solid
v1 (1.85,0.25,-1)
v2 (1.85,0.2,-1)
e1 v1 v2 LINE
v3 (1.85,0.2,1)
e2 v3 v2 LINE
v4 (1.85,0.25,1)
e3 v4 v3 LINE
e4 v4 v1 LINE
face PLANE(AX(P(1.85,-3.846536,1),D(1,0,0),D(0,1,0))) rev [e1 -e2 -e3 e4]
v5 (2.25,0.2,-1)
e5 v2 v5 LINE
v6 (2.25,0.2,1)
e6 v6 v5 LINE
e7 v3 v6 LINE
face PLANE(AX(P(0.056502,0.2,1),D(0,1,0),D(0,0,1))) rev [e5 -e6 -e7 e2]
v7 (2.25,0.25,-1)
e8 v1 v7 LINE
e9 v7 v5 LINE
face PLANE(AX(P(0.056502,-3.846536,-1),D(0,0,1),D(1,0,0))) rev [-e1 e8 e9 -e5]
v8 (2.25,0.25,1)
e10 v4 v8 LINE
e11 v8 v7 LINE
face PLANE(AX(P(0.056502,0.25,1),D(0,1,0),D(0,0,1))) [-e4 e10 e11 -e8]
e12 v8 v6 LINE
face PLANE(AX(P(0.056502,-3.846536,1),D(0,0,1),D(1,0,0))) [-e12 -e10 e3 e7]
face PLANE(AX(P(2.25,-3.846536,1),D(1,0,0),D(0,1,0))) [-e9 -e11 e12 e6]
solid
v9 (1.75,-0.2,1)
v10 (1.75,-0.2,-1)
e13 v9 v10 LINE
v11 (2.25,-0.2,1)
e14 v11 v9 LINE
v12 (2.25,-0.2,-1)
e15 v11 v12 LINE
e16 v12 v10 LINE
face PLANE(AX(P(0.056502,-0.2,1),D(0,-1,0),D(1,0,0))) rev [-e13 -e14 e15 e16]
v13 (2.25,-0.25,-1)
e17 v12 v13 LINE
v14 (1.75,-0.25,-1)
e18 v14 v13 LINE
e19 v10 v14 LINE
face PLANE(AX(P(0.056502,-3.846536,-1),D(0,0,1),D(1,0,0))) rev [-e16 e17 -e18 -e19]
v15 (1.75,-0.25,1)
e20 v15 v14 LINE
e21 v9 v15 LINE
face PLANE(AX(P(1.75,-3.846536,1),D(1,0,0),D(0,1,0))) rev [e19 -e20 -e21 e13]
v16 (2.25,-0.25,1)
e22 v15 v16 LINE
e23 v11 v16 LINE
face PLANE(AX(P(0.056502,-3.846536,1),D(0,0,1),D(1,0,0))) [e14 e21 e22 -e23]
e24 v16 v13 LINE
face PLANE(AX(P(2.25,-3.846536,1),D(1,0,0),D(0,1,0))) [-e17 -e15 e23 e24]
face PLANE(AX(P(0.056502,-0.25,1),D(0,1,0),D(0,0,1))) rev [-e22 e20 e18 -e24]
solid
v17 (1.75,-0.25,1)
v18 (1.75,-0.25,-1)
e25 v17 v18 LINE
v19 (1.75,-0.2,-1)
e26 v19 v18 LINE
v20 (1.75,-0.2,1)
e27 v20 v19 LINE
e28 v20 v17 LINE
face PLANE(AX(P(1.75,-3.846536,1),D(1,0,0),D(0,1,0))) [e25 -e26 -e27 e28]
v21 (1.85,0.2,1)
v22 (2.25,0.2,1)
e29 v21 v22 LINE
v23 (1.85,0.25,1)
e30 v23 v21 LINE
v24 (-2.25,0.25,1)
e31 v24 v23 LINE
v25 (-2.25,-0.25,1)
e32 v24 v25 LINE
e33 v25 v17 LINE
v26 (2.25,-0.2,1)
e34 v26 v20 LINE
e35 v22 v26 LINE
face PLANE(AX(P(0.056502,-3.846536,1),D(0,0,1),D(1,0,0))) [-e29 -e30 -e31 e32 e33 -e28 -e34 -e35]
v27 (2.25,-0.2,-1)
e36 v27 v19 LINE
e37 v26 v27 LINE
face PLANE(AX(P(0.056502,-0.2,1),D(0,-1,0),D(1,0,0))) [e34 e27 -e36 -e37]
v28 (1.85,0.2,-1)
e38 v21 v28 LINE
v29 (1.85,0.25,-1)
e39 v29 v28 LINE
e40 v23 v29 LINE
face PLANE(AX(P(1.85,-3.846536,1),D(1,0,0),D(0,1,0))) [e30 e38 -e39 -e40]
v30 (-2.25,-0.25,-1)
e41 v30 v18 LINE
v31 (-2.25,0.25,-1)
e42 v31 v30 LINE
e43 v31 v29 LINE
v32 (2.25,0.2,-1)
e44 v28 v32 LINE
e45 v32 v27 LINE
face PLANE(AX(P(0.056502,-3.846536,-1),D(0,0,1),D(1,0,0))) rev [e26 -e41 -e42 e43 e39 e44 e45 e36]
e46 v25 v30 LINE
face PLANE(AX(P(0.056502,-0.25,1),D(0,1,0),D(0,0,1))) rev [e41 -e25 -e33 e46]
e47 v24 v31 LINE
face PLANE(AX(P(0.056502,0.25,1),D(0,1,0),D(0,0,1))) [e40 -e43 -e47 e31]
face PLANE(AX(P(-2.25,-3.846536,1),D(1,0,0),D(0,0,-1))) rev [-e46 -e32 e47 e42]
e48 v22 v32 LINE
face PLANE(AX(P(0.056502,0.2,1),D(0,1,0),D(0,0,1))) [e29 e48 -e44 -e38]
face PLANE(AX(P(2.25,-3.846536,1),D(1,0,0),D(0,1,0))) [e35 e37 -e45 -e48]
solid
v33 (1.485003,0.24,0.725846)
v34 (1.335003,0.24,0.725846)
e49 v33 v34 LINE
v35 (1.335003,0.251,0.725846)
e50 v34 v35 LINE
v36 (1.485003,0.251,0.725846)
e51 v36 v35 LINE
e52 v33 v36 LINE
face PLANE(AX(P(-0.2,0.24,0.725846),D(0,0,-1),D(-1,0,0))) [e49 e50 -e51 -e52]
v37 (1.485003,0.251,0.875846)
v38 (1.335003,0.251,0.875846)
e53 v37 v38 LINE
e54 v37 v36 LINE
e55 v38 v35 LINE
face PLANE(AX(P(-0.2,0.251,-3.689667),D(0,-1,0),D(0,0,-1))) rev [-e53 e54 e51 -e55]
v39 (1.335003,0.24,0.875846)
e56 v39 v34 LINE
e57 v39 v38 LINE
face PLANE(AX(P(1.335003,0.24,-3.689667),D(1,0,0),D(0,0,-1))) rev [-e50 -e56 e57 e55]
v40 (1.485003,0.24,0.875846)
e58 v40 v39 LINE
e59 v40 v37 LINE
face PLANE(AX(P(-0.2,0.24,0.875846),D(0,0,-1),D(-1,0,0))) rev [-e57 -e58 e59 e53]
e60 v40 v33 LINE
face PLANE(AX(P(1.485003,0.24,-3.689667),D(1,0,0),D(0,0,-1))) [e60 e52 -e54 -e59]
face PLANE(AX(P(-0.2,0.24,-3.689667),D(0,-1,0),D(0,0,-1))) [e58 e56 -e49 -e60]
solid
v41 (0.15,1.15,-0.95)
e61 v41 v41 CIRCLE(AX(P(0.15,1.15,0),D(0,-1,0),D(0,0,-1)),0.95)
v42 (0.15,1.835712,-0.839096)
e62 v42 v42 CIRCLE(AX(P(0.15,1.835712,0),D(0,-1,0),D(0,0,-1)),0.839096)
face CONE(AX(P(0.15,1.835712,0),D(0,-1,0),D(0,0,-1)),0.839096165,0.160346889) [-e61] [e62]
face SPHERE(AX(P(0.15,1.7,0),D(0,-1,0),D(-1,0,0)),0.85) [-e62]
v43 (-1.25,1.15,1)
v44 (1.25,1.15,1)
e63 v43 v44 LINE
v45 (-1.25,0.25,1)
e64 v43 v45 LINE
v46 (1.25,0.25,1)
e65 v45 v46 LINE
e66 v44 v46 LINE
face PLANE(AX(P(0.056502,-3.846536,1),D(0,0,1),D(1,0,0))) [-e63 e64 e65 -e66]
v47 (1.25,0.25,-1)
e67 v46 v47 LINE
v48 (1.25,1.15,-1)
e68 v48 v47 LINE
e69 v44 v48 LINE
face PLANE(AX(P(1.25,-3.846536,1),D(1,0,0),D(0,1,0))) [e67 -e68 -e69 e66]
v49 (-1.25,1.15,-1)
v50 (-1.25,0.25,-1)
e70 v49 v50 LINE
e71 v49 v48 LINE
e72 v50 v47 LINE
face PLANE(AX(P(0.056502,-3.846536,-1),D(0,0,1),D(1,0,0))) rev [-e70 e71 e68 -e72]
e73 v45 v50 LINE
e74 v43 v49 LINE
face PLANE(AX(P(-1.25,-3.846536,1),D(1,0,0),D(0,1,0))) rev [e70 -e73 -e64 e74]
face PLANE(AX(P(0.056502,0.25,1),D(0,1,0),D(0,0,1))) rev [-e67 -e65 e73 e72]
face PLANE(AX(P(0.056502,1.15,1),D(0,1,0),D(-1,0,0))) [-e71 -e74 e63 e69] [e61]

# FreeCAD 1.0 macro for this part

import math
import FreeCAD as App
import Part
import Sketcher
Q = App.Units.Quantity

doc = App.newDocument("Part")
body = doc.addObject("PartDesign::Body", "Body")

# Sketch on XY plane
sketch1 = body.newObject("Sketcher::SketchObject", "Sketch")
sketch1.AttachmentSupport = (doc.getObject("XY_Plane"), [""])
sketch1.MapMode = "FlatFace"
sketch1.addGeometry([
    Part.LineSegment(App.Vector(-2.25, 0.25, 0), App.Vector(-2.25, -0.25, 0)),  # 0
    Part.LineSegment(App.Vector(-2.25, -0.25, 0), App.Vector(1.75, -0.25, 0)),  # 1
    Part.LineSegment(App.Vector(1.75, -0.25, 0), App.Vector(1.75, -0.2, 0)),  # 2
    Part.LineSegment(App.Vector(1.75, -0.2, 0), App.Vector(2.25, -0.2, 0)),  # 3
    Part.LineSegment(App.Vector(2.25, -0.2, 0), App.Vector(2.25, 0.2, 0)),  # 4
    Part.LineSegment(App.Vector(2.25, 0.2, 0), App.Vector(1.85, 0.2, 0)),  # 5
    Part.LineSegment(App.Vector(1.85, 0.2, 0), App.Vector(1.85, 0.25, 0)),  # 6
    Part.LineSegment(App.Vector(1.85, 0.25, 0), App.Vector(-2.25, 0.25, 0)),  # 7
], False)
sketch1.addConstraint([
    Sketcher.Constraint("Coincident", 0, 2, 1, 1),
    Sketcher.Constraint("Coincident", 1, 2, 2, 1),
    Sketcher.Constraint("Coincident", 2, 2, 3, 1),
    Sketcher.Constraint("Coincident", 3, 2, 4, 1),
    Sketcher.Constraint("Coincident", 4, 2, 5, 1),
    Sketcher.Constraint("Coincident", 5, 2, 6, 1),
    Sketcher.Constraint("Coincident", 6, 2, 7, 1),
    Sketcher.Constraint("Coincident", 7, 2, 0, 1),
    Sketcher.Constraint("Vertical", 0),
    Sketcher.Constraint("Horizontal", 1),
    Sketcher.Constraint("Vertical", 2),
    Sketcher.Constraint("Horizontal", 3),
    Sketcher.Constraint("Vertical", 4),
    Sketcher.Constraint("Horizontal", 5),
    Sketcher.Constraint("Vertical", 6),
    Sketcher.Constraint("Horizontal", 7),
    Sketcher.Constraint("Equal", 3, 0),
    Sketcher.Constraint("Equal", 5, 4),
    Sketcher.Constraint("Equal", 2, 6),
    Sketcher.Constraint("DistanceX", 1, 1, 1, 2, Q("4 mm")),
    Sketcher.Constraint("DistanceX", 3, 1, 3, 2, Q("0.5 mm")),
    Sketcher.Constraint("DistanceX", 5, 2, 5, 1, Q("0.4 mm")),
    Sketcher.Constraint("DistanceY", 2, 2, -1, 1, Q("0.2 mm")),
    Sketcher.Constraint("DistanceX", 0, 2, -1, 1, Q("2.25 mm")),
])
pad1 = body.newObject("PartDesign::Pad", "Pad")
pad1.Profile = sketch1
pad1.Length = 2
pad1.Midplane = True
body2 = doc.addObject("PartDesign::Body", "Body001")

# Sketch on XY plane
sketch2 = body2.newObject("Sketcher::SketchObject", "Sketch001")
sketch2.AttachmentSupport = (doc.getObject("XY_Plane001"), [""])
sketch2.MapMode = "FlatFace"
sketch2.addGeometry([
    Part.LineSegment(App.Vector(-1.25, 1.15, 0), App.Vector(-1.25, 0.25, 0)),
    Part.LineSegment(App.Vector(-1.25, 0.25, 0), App.Vector(1.25, 0.25, 0)),
    Part.LineSegment(App.Vector(1.25, 0.25, 0), App.Vector(1.25, 1.15, 0)),
    Part.LineSegment(App.Vector(1.25, 1.15, 0), App.Vector(-1.25, 1.15, 0)),
], False)
sketch2.addConstraint([
    Sketcher.Constraint("Coincident", 0, 2, 1, 1),
    Sketcher.Constraint("Coincident", 1, 2, 2, 1),
    Sketcher.Constraint("Coincident", 2, 2, 3, 1),
    Sketcher.Constraint("Coincident", 3, 2, 0, 1),
    Sketcher.Constraint("Vertical", 0),
    Sketcher.Constraint("Horizontal", 1),
    Sketcher.Constraint("Vertical", 2),
    Sketcher.Constraint("Horizontal", 3),
    Sketcher.Constraint("DistanceX", 1, 1, 1, 2, Q("2.5 mm")),
    Sketcher.Constraint("DistanceY", 0, 2, 0, 1, Q("0.9 mm")),
    Sketcher.Constraint("DistanceX", 0, 2, -1, 1, Q("1.25 mm")),
    Sketcher.Constraint("DistanceY", -1, 1, 0, 2, Q("0.25 mm")),
])
pad2 = body2.newObject("PartDesign::Pad", "Pad001")
pad2.Profile = sketch2
pad2.Length = 2
pad2.Midplane = True

# Sketch on XY plane
sketch3 = body2.newObject("Sketcher::SketchObject", "Sketch002")
sketch3.AttachmentSupport = (doc.getObject("XY_Plane001"), [""])
sketch3.MapMode = "FlatFace"
sketch3.addGeometry([
    Part.LineSegment(App.Vector(0.15, 2.55, 0), App.Vector(0.15, 1.15, 0)),
    Part.LineSegment(App.Vector(0.15, 1.15, 0), App.Vector(1.1, 1.15, 0)),
    Part.LineSegment(App.Vector(1.1, 1.15, 0), App.Vector(0.989096, 1.835712, 0)),
    Part.ArcOfCircle(Part.Circle(App.Vector(0.15, 1.7, 0), App.Vector(0, 0, 1), 0.85), math.radians(9.1872), math.radians(90)),
], False)
sketch3.addGeometry(Part.LineSegment(App.Vector(0.15, 1.15, 0), App.Vector(0.15, 2.55, 0)), True)  # axis
sketch3.addConstraint([
    Sketcher.Constraint("Coincident", 0, 2, 1, 1),
    Sketcher.Constraint("Coincident", 1, 2, 2, 1),
    Sketcher.Constraint("Tangent", 2, 2, 3, 1),
    Sketcher.Constraint("Coincident", 3, 2, 0, 1),
    Sketcher.Constraint("Vertical", 0),
    Sketcher.Constraint("Horizontal", 1),
    Sketcher.Constraint("Vertical", 4),
    Sketcher.Constraint("Coincident", 4, 1, 0, 2),
    Sketcher.Constraint("Vertical", 3, 3, 0, 2),
    Sketcher.Constraint("Equal", 0, 4),
    Sketcher.Constraint("Radius", 3, Q("0.85 mm")),
    Sketcher.Constraint("DistanceY", 0, 2, 0, 1, Q("1.4 mm")),
    Sketcher.Constraint("DistanceX", 1, 1, 1, 2, Q("0.95 mm")),
    Sketcher.Constraint("DistanceY", -1, 1, 3, 3, Q("1.7 mm")),
    Sketcher.Constraint("DistanceX", -1, 1, 1, 2, Q("1.1 mm")),
])
revolution = body2.newObject("PartDesign::Revolution", "Revolution")
revolution.Profile = sketch3
revolution.ReferenceAxis = (sketch3, ["Axis0"])
revolution.Angle = 360
body3 = doc.addObject("PartDesign::Body", "Body002")

# Sketch on XY plane
sketch4 = body3.newObject("Sketcher::SketchObject", "Sketch003")
sketch4.AttachmentSupport = (doc.getObject("XY_Plane002"), [""])
sketch4.MapMode = "FlatFace"
sketch4.addGeometry([
    Part.LineSegment(App.Vector(1.85, 0.25, 0), App.Vector(1.85, 0.2, 0)),
    Part.LineSegment(App.Vector(1.85, 0.2, 0), App.Vector(2.25, 0.2, 0)),
    Part.LineSegment(App.Vector(2.25, 0.2, 0), App.Vector(2.25, 0.25, 0)),
    Part.LineSegment(App.Vector(2.25, 0.25, 0), App.Vector(1.85, 0.25, 0)),
], False)
sketch4.addConstraint([
    Sketcher.Constraint("Coincident", 0, 2, 1, 1),
    Sketcher.Constraint("Coincident", 1, 2, 2, 1),
    Sketcher.Constraint("Coincident", 2, 2, 3, 1),
    Sketcher.Constraint("Coincident", 3, 2, 0, 1),
    Sketcher.Constraint("Vertical", 0),
    Sketcher.Constraint("Horizontal", 1),
    Sketcher.Constraint("Vertical", 2),
    Sketcher.Constraint("Horizontal", 3),
    Sketcher.Constraint("DistanceX", 1, 1, 1, 2, Q("0.4 mm")),
    Sketcher.Constraint("DistanceY", 0, 2, 0, 1, Q("0.05 mm")),
    Sketcher.Constraint("DistanceY", -1, 1, 0, 2, Q("0.2 mm")),
    Sketcher.Constraint("DistanceX", -1, 1, 0, 2, Q("1.85 mm")),
])
pad3 = body3.newObject("PartDesign::Pad", "Pad002")
pad3.Profile = sketch4
pad3.Length = 2
pad3.Midplane = True
body4 = doc.addObject("PartDesign::Body", "Body003")

# Sketch on XY plane
sketch5 = body4.newObject("Sketcher::SketchObject", "Sketch004")
sketch5.AttachmentSupport = (doc.getObject("XY_Plane003"), [""])
sketch5.MapMode = "FlatFace"
sketch5.addGeometry([
    Part.LineSegment(App.Vector(1.75, -0.2, 0), App.Vector(1.75, -0.25, 0)),
    Part.LineSegment(App.Vector(1.75, -0.25, 0), App.Vector(2.25, -0.25, 0)),
    Part.LineSegment(App.Vector(2.25, -0.25, 0), App.Vector(2.25, -0.2, 0)),
    Part.LineSegment(App.Vector(2.25, -0.2, 0), App.Vector(1.75, -0.2, 0)),
], False)
sketch5.addConstraint([
    Sketcher.Constraint("Coincident", 0, 2, 1, 1),
    Sketcher.Constraint("Coincident", 1, 2, 2, 1),
    Sketcher.Constraint("Coincident", 2, 2, 3, 1),
    Sketcher.Constraint("Coincident", 3, 2, 0, 1),
    Sketcher.Constraint("Vertical", 0),
    Sketcher.Constraint("Horizontal", 1),
    Sketcher.Constraint("Vertical", 2),
    Sketcher.Constraint("Horizontal", 3),
    Sketcher.Constraint("DistanceX", 1, 1, 1, 2, Q("0.5 mm")),
    Sketcher.Constraint("DistanceY", 0, 2, 0, 1, Q("0.05 mm")),
    Sketcher.Constraint("DistanceY", 2, 2, -1, 1, Q("0.2 mm")),
    Sketcher.Constraint("DistanceX", -1, 1, 0, 2, Q("1.75 mm")),
])
pad4 = body4.newObject("PartDesign::Pad", "Pad003")
pad4.Profile = sketch5
pad4.Length = 2
pad4.Midplane = True
body5 = doc.addObject("PartDesign::Body", "Body004")

# Sketch on XZ plane
sketch6 = body5.newObject("Sketcher::SketchObject", "Sketch005")
sketch6.AttachmentSupport = (doc.getObject("XZ_Plane004"), [""])
sketch6.MapMode = "FlatFace"
sketch6.AttachmentOffset = App.Placement(App.Vector(0, 0, -0.25), App.Rotation())
sketch6.addGeometry([
    Part.LineSegment(App.Vector(1.485003, 0.875846, 0), App.Vector(1.485003, 0.725846, 0)),
    Part.LineSegment(App.Vector(1.485003, 0.725846, 0), App.Vector(1.335003, 0.725846, 0)),
    Part.LineSegment(App.Vector(1.335003, 0.725846, 0), App.Vector(1.335003, 0.875846, 0)),
    Part.LineSegment(App.Vector(1.335003, 0.875846, 0), App.Vector(1.485003, 0.875846, 0)),
], False)
sketch6.addConstraint([
    Sketcher.Constraint("Coincident", 0, 2, 1, 1),
    Sketcher.Constraint("Coincident", 1, 2, 2, 1),
    Sketcher.Constraint("Coincident", 2, 2, 3, 1),
    Sketcher.Constraint("Coincident", 3, 2, 0, 1),
    Sketcher.Constraint("Vertical", 0),
    Sketcher.Constraint("Horizontal", 1),
    Sketcher.Constraint("Vertical", 2),
    Sketcher.Constraint("Horizontal", 3),
    Sketcher.Constraint("Equal", 3, 0),
    Sketcher.Constraint("DistanceX", 1, 2, 1, 1, Q("0.15 mm")),
    Sketcher.Constraint("DistanceX", -1, 1, 0, 2, Q("1.485003 mm")),
    Sketcher.Constraint("DistanceY", -1, 1, 0, 2, Q("0.725846 mm")),
])
pad5 = body5.newObject("PartDesign::Pad", "Pad004")
pad5.Profile = sketch6
pad5.Type = "TwoLengths"
pad5.Length = 0.001
pad5.Length2 = 0.01
pad5.Reversed = True

doc.recompute()
